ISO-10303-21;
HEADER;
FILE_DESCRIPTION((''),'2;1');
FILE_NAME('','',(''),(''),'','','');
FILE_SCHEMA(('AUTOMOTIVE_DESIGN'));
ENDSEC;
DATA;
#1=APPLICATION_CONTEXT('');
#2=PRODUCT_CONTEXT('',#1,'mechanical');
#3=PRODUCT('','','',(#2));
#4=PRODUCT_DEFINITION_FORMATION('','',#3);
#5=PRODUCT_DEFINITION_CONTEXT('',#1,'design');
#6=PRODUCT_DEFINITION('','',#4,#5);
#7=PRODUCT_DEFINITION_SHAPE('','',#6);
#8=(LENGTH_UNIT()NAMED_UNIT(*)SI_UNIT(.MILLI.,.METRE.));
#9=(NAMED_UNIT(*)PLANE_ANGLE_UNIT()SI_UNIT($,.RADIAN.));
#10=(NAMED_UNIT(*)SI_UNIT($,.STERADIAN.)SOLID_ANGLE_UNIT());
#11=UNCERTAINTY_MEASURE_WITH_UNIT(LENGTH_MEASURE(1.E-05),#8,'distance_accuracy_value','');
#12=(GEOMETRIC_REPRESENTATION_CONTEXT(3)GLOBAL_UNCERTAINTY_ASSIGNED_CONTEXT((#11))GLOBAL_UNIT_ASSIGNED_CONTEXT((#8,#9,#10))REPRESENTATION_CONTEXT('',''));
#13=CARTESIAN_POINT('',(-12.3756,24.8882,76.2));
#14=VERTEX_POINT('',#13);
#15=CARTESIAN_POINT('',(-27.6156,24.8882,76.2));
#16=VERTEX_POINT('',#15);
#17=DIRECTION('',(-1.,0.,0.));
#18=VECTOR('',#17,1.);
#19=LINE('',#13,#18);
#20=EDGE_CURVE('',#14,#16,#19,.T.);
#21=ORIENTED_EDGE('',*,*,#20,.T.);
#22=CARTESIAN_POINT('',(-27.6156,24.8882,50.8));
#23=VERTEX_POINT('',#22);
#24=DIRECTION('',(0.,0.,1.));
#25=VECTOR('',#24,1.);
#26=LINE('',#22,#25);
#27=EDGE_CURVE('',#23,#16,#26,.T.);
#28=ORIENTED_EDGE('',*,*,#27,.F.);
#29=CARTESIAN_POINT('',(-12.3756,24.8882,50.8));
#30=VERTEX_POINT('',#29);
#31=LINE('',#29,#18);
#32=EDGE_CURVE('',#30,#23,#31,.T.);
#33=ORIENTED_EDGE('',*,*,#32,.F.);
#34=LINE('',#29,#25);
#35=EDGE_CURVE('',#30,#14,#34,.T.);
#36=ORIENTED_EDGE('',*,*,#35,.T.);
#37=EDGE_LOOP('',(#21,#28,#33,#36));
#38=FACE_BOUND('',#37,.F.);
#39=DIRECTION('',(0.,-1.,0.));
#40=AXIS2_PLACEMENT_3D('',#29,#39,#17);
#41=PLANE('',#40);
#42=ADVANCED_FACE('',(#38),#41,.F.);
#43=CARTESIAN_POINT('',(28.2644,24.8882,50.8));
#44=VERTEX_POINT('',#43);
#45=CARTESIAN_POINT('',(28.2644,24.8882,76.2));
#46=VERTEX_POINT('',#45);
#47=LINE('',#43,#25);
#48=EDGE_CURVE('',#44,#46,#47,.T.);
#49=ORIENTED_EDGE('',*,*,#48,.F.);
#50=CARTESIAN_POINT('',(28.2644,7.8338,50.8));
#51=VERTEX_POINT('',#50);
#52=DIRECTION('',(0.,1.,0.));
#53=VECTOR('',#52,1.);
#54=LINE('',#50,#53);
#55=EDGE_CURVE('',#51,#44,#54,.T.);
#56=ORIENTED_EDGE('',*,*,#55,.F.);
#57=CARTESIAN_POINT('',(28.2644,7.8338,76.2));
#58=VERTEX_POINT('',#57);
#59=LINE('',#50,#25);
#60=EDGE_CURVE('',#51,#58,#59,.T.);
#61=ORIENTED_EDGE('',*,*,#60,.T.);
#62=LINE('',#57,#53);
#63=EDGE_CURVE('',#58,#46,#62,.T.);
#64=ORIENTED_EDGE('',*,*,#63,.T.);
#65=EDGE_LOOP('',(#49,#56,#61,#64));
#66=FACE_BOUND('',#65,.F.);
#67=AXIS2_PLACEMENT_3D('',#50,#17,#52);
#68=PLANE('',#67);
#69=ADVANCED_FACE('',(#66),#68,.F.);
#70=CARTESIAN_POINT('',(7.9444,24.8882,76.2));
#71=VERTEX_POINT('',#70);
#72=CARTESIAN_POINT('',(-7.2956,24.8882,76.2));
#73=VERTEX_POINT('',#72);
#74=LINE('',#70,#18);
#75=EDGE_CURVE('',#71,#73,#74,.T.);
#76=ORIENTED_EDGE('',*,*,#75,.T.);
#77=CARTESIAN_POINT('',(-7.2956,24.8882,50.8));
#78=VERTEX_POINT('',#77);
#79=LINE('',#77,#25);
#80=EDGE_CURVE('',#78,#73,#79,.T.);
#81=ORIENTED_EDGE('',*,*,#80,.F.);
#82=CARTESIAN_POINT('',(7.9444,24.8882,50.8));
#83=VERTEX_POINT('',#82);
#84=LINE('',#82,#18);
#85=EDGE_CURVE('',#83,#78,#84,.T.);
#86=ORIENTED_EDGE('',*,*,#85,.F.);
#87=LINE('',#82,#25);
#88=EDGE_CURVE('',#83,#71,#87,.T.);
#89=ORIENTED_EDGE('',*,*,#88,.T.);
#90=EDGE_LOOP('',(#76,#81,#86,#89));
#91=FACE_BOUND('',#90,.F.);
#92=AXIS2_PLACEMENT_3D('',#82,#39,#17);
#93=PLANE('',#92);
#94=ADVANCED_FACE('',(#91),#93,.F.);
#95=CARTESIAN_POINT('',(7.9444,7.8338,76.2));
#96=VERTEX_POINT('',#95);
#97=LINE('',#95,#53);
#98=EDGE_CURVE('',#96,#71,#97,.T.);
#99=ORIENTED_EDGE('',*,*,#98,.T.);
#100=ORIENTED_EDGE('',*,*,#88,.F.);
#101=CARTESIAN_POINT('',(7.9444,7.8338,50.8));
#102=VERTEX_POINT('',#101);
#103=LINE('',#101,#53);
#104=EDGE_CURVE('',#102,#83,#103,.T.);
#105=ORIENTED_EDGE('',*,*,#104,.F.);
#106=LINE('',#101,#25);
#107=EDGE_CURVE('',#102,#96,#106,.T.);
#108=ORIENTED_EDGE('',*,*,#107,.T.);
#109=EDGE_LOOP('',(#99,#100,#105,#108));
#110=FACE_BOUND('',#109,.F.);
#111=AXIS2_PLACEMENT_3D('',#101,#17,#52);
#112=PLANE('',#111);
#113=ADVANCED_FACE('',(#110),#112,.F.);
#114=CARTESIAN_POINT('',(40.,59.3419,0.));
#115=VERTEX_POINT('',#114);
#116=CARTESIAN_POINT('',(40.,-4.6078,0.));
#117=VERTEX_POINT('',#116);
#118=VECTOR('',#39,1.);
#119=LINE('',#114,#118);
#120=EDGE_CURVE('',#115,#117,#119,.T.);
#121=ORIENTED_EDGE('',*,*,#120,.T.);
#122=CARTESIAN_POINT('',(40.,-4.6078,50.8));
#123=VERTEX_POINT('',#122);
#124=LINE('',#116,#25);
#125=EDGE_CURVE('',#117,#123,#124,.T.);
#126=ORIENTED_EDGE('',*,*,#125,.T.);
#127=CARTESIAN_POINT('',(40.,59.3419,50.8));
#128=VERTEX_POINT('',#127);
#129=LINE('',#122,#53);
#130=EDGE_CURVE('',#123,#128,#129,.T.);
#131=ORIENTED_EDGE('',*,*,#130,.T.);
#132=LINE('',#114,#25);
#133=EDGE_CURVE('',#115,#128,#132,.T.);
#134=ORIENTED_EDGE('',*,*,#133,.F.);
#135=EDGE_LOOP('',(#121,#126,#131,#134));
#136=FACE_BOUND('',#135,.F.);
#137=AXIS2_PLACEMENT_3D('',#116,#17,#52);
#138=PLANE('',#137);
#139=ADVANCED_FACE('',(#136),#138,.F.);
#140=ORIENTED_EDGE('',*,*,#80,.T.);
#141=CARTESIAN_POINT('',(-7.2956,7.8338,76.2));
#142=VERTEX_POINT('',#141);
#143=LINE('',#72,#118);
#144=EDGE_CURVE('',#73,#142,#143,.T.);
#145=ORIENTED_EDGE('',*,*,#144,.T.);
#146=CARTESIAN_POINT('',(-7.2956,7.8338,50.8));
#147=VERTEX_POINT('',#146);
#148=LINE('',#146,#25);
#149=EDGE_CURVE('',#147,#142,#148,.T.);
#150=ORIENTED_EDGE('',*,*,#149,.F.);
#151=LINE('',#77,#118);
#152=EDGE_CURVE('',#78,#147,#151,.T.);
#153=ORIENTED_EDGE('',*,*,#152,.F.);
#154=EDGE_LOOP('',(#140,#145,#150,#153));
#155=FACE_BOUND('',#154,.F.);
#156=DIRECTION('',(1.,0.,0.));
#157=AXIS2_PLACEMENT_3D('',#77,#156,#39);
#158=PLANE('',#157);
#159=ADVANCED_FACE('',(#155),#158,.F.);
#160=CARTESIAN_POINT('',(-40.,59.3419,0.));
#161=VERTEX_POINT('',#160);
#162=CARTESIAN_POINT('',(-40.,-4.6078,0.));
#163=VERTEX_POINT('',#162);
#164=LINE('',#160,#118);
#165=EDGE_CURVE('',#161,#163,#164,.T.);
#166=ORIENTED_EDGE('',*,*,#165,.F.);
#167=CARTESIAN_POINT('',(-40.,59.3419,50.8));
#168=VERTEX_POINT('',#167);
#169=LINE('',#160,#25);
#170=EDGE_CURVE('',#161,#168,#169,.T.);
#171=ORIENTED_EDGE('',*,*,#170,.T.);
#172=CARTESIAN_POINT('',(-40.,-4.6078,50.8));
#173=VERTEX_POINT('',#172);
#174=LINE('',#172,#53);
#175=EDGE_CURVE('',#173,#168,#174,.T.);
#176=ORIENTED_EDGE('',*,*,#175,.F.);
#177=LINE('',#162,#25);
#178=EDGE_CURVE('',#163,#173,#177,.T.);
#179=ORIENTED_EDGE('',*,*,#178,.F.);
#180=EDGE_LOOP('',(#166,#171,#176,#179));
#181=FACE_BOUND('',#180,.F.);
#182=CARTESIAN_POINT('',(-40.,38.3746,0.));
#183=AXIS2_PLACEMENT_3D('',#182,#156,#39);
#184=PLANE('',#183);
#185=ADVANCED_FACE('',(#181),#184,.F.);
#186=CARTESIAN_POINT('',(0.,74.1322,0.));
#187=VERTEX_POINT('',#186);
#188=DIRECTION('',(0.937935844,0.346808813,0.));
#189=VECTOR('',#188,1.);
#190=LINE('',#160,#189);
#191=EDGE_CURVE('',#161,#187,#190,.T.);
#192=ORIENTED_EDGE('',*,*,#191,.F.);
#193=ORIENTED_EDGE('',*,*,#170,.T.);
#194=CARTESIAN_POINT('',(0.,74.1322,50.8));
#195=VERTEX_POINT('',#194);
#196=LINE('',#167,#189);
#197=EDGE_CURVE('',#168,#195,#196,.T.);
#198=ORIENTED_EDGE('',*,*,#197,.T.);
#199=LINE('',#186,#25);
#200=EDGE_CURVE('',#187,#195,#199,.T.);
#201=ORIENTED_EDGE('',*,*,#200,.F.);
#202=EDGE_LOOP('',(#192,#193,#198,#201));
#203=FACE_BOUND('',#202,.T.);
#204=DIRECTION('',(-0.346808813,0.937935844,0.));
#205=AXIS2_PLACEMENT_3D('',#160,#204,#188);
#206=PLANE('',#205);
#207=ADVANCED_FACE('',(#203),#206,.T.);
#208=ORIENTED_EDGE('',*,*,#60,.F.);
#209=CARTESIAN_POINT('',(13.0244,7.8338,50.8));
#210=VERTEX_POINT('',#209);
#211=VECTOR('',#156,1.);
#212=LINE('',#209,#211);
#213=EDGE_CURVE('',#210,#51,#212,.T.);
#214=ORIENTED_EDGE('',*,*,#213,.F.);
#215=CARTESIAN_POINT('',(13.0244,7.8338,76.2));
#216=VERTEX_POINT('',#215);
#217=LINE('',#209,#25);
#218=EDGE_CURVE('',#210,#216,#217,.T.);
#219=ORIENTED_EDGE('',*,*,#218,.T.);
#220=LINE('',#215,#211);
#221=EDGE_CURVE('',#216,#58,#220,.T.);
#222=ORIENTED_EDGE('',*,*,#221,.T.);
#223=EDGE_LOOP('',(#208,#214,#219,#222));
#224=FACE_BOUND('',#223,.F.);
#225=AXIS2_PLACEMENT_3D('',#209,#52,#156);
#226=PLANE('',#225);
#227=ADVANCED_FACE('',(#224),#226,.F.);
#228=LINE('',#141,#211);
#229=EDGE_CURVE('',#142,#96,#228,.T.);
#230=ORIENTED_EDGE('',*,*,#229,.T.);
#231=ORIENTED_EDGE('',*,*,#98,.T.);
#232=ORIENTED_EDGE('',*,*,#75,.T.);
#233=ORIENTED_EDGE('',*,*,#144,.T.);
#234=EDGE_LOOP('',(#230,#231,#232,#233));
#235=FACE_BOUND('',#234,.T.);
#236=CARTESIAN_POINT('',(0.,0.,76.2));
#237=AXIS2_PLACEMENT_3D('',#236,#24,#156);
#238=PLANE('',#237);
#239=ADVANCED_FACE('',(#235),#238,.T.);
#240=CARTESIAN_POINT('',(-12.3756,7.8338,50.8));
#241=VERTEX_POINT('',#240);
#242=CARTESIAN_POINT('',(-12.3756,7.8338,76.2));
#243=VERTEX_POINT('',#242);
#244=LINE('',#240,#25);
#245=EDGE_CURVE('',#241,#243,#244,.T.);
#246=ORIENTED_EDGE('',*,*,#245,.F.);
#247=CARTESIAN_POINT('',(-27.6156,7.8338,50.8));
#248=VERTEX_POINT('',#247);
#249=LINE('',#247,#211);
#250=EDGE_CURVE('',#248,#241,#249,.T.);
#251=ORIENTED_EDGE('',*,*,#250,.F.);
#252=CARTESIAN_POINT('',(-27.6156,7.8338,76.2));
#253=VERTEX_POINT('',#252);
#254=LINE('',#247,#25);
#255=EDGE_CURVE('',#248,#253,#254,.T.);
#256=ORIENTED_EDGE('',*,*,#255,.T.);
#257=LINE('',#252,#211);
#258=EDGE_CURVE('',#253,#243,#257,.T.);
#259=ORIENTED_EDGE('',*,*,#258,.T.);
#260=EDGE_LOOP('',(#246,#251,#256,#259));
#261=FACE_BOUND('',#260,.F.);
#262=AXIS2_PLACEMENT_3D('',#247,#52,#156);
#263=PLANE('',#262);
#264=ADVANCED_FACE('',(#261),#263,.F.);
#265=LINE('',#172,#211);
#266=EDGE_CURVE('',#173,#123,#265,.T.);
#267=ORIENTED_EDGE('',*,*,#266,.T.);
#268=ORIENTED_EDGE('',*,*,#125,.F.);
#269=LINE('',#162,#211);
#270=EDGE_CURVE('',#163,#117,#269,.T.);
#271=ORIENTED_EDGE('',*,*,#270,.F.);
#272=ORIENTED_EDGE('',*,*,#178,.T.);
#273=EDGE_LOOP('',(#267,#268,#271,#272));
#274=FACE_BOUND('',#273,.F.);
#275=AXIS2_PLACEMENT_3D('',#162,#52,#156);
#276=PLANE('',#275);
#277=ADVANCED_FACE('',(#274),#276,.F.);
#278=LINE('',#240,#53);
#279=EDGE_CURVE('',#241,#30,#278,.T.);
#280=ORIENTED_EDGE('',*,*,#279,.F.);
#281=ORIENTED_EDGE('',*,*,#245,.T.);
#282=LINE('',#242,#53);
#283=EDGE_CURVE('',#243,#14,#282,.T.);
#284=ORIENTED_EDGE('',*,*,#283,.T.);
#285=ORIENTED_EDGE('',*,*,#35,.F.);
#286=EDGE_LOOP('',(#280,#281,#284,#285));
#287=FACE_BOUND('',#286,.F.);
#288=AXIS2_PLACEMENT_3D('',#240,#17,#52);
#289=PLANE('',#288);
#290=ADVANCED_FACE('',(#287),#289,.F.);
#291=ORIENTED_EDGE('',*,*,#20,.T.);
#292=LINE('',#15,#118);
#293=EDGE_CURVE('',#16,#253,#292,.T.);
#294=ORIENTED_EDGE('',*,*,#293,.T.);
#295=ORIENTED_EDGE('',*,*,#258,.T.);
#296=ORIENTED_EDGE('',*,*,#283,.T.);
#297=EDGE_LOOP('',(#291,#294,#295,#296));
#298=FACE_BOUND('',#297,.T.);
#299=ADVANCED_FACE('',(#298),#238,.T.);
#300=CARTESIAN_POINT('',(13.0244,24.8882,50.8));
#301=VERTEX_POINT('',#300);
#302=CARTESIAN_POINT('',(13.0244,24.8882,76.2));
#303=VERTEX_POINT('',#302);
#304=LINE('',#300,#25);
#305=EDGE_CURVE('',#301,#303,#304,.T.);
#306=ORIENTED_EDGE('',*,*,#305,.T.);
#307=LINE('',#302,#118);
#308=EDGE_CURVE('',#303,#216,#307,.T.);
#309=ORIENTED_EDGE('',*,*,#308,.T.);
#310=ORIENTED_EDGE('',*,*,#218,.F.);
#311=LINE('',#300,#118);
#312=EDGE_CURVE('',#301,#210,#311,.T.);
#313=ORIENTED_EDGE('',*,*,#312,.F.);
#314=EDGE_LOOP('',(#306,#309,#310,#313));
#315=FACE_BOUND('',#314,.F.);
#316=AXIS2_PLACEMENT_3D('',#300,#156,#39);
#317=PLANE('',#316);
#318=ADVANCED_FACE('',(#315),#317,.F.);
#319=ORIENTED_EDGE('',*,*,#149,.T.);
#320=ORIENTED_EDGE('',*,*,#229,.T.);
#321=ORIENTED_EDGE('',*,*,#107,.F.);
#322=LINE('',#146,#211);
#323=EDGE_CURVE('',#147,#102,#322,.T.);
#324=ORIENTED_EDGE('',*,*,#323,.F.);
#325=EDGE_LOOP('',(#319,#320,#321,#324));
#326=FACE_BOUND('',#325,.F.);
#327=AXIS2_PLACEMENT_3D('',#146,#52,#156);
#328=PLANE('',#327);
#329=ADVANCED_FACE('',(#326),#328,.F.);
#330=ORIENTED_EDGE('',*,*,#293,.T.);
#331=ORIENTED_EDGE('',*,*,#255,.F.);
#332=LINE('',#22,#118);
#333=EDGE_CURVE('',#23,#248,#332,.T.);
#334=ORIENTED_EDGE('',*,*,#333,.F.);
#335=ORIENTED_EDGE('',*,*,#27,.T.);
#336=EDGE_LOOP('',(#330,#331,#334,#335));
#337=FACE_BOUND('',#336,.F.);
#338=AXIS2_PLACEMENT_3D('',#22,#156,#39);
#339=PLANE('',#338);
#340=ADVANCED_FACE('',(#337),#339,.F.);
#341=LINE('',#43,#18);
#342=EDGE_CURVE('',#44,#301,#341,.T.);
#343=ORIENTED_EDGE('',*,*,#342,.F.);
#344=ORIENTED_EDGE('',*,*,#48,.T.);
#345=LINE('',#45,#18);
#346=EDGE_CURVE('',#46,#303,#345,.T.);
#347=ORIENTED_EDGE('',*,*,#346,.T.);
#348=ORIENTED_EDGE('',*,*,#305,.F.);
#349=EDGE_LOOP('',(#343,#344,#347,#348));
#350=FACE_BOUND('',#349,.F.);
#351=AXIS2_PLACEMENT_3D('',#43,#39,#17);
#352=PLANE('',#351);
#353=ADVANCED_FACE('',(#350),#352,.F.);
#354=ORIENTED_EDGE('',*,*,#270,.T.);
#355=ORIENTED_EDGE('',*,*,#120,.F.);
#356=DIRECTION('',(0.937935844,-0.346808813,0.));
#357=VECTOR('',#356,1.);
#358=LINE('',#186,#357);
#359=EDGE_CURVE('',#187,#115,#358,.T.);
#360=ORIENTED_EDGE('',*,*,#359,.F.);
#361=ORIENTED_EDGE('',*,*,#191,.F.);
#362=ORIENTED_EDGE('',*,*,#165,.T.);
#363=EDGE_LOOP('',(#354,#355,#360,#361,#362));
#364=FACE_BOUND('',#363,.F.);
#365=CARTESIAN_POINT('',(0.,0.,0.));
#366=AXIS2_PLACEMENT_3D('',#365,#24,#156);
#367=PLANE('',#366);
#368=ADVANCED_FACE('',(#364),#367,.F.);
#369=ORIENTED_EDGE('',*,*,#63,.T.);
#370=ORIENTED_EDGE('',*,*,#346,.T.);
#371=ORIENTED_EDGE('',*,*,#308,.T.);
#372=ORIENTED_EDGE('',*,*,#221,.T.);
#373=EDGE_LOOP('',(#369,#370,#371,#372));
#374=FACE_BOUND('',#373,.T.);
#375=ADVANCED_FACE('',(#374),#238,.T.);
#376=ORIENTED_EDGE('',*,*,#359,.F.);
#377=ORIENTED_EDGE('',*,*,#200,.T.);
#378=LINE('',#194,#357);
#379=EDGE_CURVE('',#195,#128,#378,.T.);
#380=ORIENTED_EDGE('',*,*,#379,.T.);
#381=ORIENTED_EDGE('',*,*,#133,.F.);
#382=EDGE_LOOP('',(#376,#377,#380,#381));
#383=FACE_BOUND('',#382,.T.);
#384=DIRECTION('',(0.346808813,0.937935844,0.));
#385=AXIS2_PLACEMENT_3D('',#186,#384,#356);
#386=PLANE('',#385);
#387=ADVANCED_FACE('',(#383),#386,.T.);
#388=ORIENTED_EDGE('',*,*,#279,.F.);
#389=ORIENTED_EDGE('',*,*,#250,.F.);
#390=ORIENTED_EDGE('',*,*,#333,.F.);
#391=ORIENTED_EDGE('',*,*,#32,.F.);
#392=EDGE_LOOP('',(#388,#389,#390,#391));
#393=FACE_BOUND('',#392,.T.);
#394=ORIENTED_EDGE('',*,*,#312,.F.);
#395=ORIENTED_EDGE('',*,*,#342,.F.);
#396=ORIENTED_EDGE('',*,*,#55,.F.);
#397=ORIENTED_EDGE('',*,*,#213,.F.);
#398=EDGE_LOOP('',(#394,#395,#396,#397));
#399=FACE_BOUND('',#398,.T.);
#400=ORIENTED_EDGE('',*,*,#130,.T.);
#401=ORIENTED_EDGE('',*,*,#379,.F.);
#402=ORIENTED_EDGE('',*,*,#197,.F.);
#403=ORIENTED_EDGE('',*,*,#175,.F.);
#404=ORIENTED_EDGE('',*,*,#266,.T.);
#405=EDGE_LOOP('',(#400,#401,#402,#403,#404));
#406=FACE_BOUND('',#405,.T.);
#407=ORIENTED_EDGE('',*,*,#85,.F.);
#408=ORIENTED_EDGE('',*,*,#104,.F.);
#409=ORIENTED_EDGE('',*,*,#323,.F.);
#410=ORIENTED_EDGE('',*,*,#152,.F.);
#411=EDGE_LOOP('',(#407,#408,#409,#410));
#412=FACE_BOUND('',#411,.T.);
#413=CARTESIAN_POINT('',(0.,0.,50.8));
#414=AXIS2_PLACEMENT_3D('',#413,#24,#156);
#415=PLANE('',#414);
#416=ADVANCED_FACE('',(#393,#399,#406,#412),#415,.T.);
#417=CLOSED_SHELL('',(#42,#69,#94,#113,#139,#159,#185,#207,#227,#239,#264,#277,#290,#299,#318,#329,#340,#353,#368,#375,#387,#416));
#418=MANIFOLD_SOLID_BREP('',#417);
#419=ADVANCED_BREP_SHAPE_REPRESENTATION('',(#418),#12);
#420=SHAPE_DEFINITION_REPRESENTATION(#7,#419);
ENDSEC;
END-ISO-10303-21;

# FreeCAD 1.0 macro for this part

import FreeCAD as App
import Part
import Sketcher
from FreeCAD import Vector
Q = App.Units.Quantity

doc = App.newDocument("Part")
body = doc.addObject("PartDesign::Body", "Body")

sketch1 = doc.addObject("Sketcher::SketchObject", "Sketch")
body.addObject(sketch1)
sketch1.AttachmentSupport = (doc.XY_Plane, [""])
sketch1.MapMode = "FlatFace"
sketch1.addGeometry([
    Part.LineSegment(Vector(-40, 59, 0), Vector(-40, -5, 0)),
    Part.LineSegment(Vector(-40, -5, 0), Vector(40, -5, 0)),
    Part.LineSegment(Vector(40, -5, 0), Vector(40, 59, 0)),
    Part.LineSegment(Vector(40, 59, 0), Vector(0, 74, 0)),
    Part.LineSegment(Vector(0, 74, 0), Vector(-40, 59, 0)),
], False)
sketch1.addConstraint([
    Sketcher.Constraint("Coincident", 0, 2, 1, 1),
    Sketcher.Constraint("Coincident", 1, 2, 2, 1),
    Sketcher.Constraint("Coincident", 2, 2, 3, 1),
    Sketcher.Constraint("Coincident", 3, 2, 4, 1),
    Sketcher.Constraint("Coincident", 4, 2, 0, 1),
    Sketcher.Constraint("Vertical", 0),
    Sketcher.Constraint("Horizontal", 1),
    Sketcher.Constraint("Vertical", 2),
    Sketcher.Constraint("Symmetric", 2, 2, 4, 2, -2),
    Sketcher.Constraint("PointOnObject", 3, 2, -2),
    Sketcher.Constraint("DistanceY", 0, 2, 3, 2, Q("3.1 in")),
    Sketcher.Constraint("DistanceX", 1, 1, 1, 2, Q("3.1496 in")),
    Sketcher.Constraint("Distance", 3, Q("1.679 in")),
    Sketcher.Constraint("DistanceY", 0, 2, -1, 1, Q("0.1814 in")),
])
pad1 = doc.addObject("PartDesign::Pad", "Pad")
body.addObject(pad1)
pad1.Profile = sketch1
pad1.Length = Q("2 in")

sketch2 = doc.addObject("Sketcher::SketchObject", "Sketch001")
body.addObject(sketch2)
sketch2.AttachmentSupport = (doc.XY_Plane, [""])
sketch2.MapMode = "FlatFace"
sketch2.AttachmentOffset = App.Placement(Vector(0, 0, 2 * 25.4), App.Rotation())
sketch2.addGeometry([
    Part.LineSegment(Vector(-28, 25, 0), Vector(-28, 8, 0)),
    Part.LineSegment(Vector(-28, 8, 0), Vector(-12, 8, 0)),
    Part.LineSegment(Vector(-12, 8, 0), Vector(-12, 25, 0)),
    Part.LineSegment(Vector(-12, 25, 0), Vector(-28, 25, 0)),
    Part.LineSegment(Vector(-7, 25, 0), Vector(-7, 8, 0)),
    Part.LineSegment(Vector(-7, 8, 0), Vector(8, 8, 0)),
    Part.LineSegment(Vector(8, 8, 0), Vector(8, 25, 0)),
    Part.LineSegment(Vector(8, 25, 0), Vector(-7, 25, 0)),
    Part.LineSegment(Vector(13, 25, 0), Vector(13, 8, 0)),
    Part.LineSegment(Vector(13, 8, 0), Vector(28, 8, 0)),
    Part.LineSegment(Vector(28, 8, 0), Vector(28, 25, 0)),
    Part.LineSegment(Vector(28, 25, 0), Vector(13, 25, 0)),
], False)
sketch2.addConstraint([
    Sketcher.Constraint("Coincident", 0, 2, 1, 1),
    Sketcher.Constraint("Coincident", 1, 2, 2, 1),
    Sketcher.Constraint("Coincident", 2, 2, 3, 1),
    Sketcher.Constraint("Coincident", 3, 2, 0, 1),
    Sketcher.Constraint("Coincident", 4, 2, 5, 1),
    Sketcher.Constraint("Coincident", 5, 2, 6, 1),
    Sketcher.Constraint("Coincident", 6, 2, 7, 1),
    Sketcher.Constraint("Coincident", 7, 2, 4, 1),
    Sketcher.Constraint("Coincident", 8, 2, 9, 1),
    Sketcher.Constraint("Coincident", 9, 2, 10, 1),
    Sketcher.Constraint("Coincident", 10, 2, 11, 1),
    Sketcher.Constraint("Coincident", 11, 2, 8, 1),
    Sketcher.Constraint("Vertical", 0),
    Sketcher.Constraint("Horizontal", 1),
    Sketcher.Constraint("Vertical", 2),
    Sketcher.Constraint("Horizontal", 3),
    Sketcher.Constraint("Vertical", 4),
    Sketcher.Constraint("Horizontal", 5),
    Sketcher.Constraint("Vertical", 6),
    Sketcher.Constraint("Horizontal", 7),
    Sketcher.Constraint("Vertical", 8),
    Sketcher.Constraint("Horizontal", 9),
    Sketcher.Constraint("Vertical", 10),
    Sketcher.Constraint("Horizontal", 11),
    Sketcher.Constraint("Horizontal", 1, 2, 4, 2),
    Sketcher.Constraint("Horizontal", 3, 2, 6, 2),
    Sketcher.Constraint("Horizontal", 5, 2, 8, 2),
    Sketcher.Constraint("Horizontal", 7, 2, 10, 2),
    Sketcher.Constraint("Equal", 3, 5),
    Sketcher.Constraint("Equal", 7, 9),
    Sketcher.Constraint("DistanceX", 1, 1, 1, 2, Q("0.6 in")),
    Sketcher.Constraint("DistanceX", 1, 2, 8, 2, Q("1 in")),
    Sketcher.Constraint("DistanceX", 1, 2, 4, 2, Q("0.2 in")),
    Sketcher.Constraint("DistanceY", 0, 2, 0, 1, Q("17.0544 mm")),
    Sketcher.Constraint("DistanceX", 0, 2, -1, 1, Q("27.6156 mm")),
    Sketcher.Constraint("DistanceY", -1, 1, 0, 2, Q("7.8338 mm")),
])
pad2 = doc.addObject("PartDesign::Pad", "Pad001")
body.addObject(pad2)
pad2.Profile = sketch2
pad2.Length = Q("1 in")

doc.recompute()
